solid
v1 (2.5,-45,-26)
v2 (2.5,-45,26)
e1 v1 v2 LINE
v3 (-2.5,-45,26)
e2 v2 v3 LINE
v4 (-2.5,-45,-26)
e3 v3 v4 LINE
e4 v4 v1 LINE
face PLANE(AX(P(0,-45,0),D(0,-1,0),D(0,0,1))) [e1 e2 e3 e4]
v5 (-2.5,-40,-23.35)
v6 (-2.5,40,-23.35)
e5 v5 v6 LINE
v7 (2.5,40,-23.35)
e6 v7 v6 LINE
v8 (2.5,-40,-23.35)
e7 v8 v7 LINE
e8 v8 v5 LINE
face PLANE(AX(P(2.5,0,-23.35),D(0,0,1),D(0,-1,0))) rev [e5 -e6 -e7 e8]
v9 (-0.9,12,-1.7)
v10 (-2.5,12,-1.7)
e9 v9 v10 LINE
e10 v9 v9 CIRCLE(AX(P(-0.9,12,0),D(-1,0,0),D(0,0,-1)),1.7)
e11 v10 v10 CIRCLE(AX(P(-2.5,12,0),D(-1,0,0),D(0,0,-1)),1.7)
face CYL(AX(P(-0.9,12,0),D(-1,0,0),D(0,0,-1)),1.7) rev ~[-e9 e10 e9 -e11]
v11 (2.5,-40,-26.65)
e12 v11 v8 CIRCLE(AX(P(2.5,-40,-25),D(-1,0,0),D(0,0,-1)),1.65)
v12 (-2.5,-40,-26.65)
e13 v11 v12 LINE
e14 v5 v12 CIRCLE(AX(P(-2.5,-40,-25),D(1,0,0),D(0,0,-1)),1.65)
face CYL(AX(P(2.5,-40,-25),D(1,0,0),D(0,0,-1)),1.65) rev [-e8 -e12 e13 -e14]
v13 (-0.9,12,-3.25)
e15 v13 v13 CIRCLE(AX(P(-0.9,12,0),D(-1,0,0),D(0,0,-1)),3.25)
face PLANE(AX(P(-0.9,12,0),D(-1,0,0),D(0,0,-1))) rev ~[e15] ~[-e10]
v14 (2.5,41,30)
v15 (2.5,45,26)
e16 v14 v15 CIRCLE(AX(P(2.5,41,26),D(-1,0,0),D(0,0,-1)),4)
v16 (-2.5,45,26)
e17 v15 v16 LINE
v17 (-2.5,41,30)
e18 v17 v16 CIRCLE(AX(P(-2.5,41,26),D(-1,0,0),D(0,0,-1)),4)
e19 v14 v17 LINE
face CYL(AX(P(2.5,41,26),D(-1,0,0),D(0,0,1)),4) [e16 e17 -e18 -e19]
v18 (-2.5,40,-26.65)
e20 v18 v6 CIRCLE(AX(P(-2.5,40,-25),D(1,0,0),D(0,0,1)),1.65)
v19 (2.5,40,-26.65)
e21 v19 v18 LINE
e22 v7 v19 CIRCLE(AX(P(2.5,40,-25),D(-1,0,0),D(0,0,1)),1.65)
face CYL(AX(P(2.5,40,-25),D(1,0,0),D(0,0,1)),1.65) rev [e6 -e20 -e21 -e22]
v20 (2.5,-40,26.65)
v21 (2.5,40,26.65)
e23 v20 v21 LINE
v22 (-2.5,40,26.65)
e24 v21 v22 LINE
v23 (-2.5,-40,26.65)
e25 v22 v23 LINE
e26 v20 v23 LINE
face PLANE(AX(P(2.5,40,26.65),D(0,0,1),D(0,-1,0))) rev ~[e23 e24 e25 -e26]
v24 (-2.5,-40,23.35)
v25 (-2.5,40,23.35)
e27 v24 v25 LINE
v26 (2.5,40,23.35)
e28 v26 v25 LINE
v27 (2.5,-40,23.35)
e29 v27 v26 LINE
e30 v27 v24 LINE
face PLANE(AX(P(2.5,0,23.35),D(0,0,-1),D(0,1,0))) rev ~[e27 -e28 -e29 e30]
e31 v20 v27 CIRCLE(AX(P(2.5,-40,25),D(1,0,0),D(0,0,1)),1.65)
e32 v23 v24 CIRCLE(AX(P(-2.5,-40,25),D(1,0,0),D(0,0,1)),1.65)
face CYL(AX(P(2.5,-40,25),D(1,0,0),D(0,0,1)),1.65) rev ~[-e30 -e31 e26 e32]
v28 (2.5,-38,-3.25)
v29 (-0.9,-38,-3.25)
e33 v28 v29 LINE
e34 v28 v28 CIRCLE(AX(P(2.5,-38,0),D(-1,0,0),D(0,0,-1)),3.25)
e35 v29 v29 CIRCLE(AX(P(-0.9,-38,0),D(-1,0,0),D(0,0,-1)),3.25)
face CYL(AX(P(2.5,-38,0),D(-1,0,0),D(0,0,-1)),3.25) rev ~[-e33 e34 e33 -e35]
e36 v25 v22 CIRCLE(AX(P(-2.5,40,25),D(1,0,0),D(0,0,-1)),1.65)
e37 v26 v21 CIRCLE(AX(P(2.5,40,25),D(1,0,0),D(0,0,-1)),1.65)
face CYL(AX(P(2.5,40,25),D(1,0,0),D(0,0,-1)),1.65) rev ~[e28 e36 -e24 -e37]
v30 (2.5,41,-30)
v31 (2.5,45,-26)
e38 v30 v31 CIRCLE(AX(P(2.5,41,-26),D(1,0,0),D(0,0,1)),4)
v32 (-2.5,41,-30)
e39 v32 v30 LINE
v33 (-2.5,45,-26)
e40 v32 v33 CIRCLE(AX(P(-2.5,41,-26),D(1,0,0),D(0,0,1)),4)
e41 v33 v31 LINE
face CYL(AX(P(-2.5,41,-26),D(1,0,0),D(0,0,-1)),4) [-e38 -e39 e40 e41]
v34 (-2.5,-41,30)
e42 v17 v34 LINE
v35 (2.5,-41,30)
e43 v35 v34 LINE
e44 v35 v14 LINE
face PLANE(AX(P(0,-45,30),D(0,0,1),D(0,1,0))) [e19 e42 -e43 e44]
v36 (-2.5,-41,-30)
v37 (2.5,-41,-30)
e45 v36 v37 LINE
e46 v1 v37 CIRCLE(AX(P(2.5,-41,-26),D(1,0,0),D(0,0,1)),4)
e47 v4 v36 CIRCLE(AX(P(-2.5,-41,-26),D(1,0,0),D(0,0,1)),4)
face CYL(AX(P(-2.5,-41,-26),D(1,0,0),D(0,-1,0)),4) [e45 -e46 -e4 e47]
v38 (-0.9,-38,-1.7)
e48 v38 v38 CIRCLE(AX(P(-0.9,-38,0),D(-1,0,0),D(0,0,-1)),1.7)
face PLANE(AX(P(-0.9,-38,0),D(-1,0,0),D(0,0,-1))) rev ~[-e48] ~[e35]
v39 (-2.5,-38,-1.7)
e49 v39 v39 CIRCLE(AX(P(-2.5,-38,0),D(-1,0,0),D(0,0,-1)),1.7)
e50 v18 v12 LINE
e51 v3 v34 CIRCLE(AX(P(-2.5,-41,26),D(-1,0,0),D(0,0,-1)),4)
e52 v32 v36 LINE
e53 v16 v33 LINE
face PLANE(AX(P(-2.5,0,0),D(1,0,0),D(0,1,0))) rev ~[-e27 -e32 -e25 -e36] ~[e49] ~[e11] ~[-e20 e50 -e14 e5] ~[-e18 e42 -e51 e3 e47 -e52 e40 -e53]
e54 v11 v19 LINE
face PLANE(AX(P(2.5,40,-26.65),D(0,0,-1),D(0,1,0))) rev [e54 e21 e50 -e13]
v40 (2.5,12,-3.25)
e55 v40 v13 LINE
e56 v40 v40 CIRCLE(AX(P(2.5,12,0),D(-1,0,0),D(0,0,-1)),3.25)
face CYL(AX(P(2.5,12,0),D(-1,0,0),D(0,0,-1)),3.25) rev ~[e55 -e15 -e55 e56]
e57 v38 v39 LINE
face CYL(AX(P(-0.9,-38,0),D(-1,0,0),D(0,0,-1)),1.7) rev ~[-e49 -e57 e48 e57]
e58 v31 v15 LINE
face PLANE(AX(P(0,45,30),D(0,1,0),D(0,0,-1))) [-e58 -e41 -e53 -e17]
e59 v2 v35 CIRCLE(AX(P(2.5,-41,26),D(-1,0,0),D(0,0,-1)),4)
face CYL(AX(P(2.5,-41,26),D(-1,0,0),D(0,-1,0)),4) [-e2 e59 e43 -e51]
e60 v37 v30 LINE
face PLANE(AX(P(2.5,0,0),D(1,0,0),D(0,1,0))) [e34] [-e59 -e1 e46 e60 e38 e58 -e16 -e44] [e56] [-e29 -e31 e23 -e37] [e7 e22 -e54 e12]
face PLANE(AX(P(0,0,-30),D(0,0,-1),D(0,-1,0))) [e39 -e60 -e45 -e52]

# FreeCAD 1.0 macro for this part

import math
import FreeCAD as App
import Part
import Sketcher
from FreeCAD import Vector
Q = App.Units.Quantity


def edges_at(feature, points):
    """Names of the edges that pass closest to the given points."""
    edges = feature.Shape.Edges
    near = lambda p: min(range(len(edges)), key=lambda i: edges[i].distToShape(Part.Vertex(*p))[0])
    return sorted({f"Edge{near(p) + 1}" for p in points})

doc = App.newDocument("Part")
body = doc.addObject("PartDesign::Body", "Body")

# Sketch on YZ plane
sketch1 = doc.addObject("Sketcher::SketchObject", "Sketch")
body.addObject(sketch1)
sketch1.AttachmentSupport = (doc.YZ_Plane, [""])
sketch1.MapMode = "FlatFace"
sketch1.addGeometry(Part.LineSegment(Vector(-45, 30, 0), Vector(-45, -30, 0)), False)
sketch1.addGeometry(Part.LineSegment(Vector(-45, -30, 0), Vector(45, -30, 0)), False)
sketch1.addGeometry(Part.LineSegment(Vector(45, -30, 0), Vector(45, 30, 0)), False)
sketch1.addGeometry(Part.LineSegment(Vector(45, 30, 0), Vector(-45, 30, 0)), False)
sketch1.addConstraint(Sketcher.Constraint("Coincident", 0, 2, 1, 1))
sketch1.addConstraint(Sketcher.Constraint("Coincident", 1, 2, 2, 1))
sketch1.addConstraint(Sketcher.Constraint("Coincident", 2, 2, 3, 1))
sketch1.addConstraint(Sketcher.Constraint("Coincident", 3, 2, 0, 1))
sketch1.addConstraint(Sketcher.Constraint("Vertical", 0))
sketch1.addConstraint(Sketcher.Constraint("Horizontal", 1))
sketch1.addConstraint(Sketcher.Constraint("Vertical", 2))
sketch1.addConstraint(Sketcher.Constraint("Horizontal", 3))
sketch1.addConstraint(Sketcher.Constraint("Symmetric", 0, 2, 2, 2, -1, 1))
sketch1.addConstraint(Sketcher.Constraint("DistanceX", 1, 1, 1, 2, Q("90 mm")))
sketch1.addConstraint(Sketcher.Constraint("DistanceY", 0, 2, 0, 1, Q("60 mm")))
pad1 = doc.addObject("PartDesign::Pad", "Pad")
body.addObject(pad1)
pad1.Profile = sketch1
pad1.Length = 5
pad1.Midplane = True

# Sketch on YZ plane
sketch2 = doc.addObject("Sketcher::SketchObject", "Sketch001")
body.addObject(sketch2)
sketch2.AttachmentSupport = (doc.YZ_Plane, [""])
sketch2.MapMode = "FlatFace"
sketch2.AttachmentOffset = App.Placement(Vector(0, 0, 2.5), App.Rotation())
sketch2.addGeometry(Part.Circle(Vector(-38, 0, 0), Vector(0, 0, 1), 1.7), False)
sketch2.addGeometry(Part.Circle(Vector(12, 0, 0), Vector(0, 0, 1), 1.7), False)
sketch2.addConstraint(Sketcher.Constraint("Equal", 0, 1))
sketch2.addConstraint(Sketcher.Constraint("PointOnObject", 0, 3, -1))
sketch2.addConstraint(Sketcher.Constraint("PointOnObject", 1, 3, -1))
sketch2.addConstraint(Sketcher.Constraint("Diameter", 0, Q("3.4 mm")))
sketch2.addConstraint(Sketcher.Constraint("DistanceX", 0, 3, -1, 1, Q("38 mm")))
sketch2.addConstraint(Sketcher.Constraint("DistanceX", -1, 1, 1, 3, Q("12 mm")))
doc.recompute()
hole = doc.addObject("PartDesign::Hole", "Hole")
body.addObject(hole)
hole.Profile = sketch2
hole.ThreadType = "None"
hole.Diameter = 3.4
hole.DepthType = "ThroughAll"
hole.HoleCutType = "Counterbore"
hole.HoleCutDiameter = 6.5
hole.HoleCutDepth = 3.4

# Sketch on YZ plane
sketch3 = doc.addObject("Sketcher::SketchObject", "Sketch002")
body.addObject(sketch3)
sketch3.AttachmentSupport = (doc.YZ_Plane, [""])
sketch3.MapMode = "FlatFace"
sketch3.AttachmentOffset = App.Placement(Vector(0, 0, 2.5), App.Rotation())
sketch3.addGeometry(Part.LineSegment(Vector(40, 26.6, 0), Vector(-40, 26.6, 0)), False)
sketch3.addGeometry(Part.ArcOfCircle(Part.Circle(Vector(-40, 25, 0), Vector(0, 0, 1), 1.6), math.radians(90), math.radians(270)), False)
sketch3.addGeometry(Part.LineSegment(Vector(-40, 23.4, 0), Vector(40, 23.4, 0)), False)
sketch3.addGeometry(Part.ArcOfCircle(Part.Circle(Vector(40, 25, 0), Vector(0, 0, 1), 1.6), math.radians(-90), math.radians(90)), False)
sketch3.addConstraint(Sketcher.Constraint("Tangent", 0, 2, 1, 1))
sketch3.addConstraint(Sketcher.Constraint("Tangent", 1, 2, 2, 1))
sketch3.addConstraint(Sketcher.Constraint("Tangent", 2, 2, 3, 1))
sketch3.addConstraint(Sketcher.Constraint("Tangent", 3, 2, 0, 1))
sketch3.addConstraint(Sketcher.Constraint("Horizontal", 0))
sketch3.addConstraint(Sketcher.Constraint("Horizontal", 2))
sketch3.addConstraint(Sketcher.Constraint("DistanceX", 0, 2, 0, 1, Q("80 mm")))
sketch3.addConstraint(Sketcher.Constraint("Radius", 1, Q("1.65 mm")))
sketch3.addConstraint(Sketcher.Constraint("DistanceY", -1, 1, 1, 3, Q("25 mm")))
sketch3.addConstraint(Sketcher.Constraint("DistanceX", 1, 3, -1, 1, Q("40 mm")))
pocket1 = doc.addObject("PartDesign::Pocket", "Pocket")
body.addObject(pocket1)
pocket1.Profile = sketch3
pocket1.Type = "ThroughAll"
doc.recompute()

mirrored = doc.addObject("PartDesign::Mirrored", "Mirrored")
body.addObject(mirrored)
mirrored.Originals = [pocket1]
mirrored.MirrorPlane = (doc.XY_Plane, [""])
body.Tip = mirrored
doc.recompute()

fillet = doc.addObject("PartDesign::Fillet", "Fillet")
body.addObject(fillet)
fillet.Base = (mirrored, edges_at(mirrored, [
    (0, 45, 30),
    (0, 45, -30),
    (0, -45, 30),
    (0, -45, -30),
]))
fillet.Radius = 4

doc.recompute()
